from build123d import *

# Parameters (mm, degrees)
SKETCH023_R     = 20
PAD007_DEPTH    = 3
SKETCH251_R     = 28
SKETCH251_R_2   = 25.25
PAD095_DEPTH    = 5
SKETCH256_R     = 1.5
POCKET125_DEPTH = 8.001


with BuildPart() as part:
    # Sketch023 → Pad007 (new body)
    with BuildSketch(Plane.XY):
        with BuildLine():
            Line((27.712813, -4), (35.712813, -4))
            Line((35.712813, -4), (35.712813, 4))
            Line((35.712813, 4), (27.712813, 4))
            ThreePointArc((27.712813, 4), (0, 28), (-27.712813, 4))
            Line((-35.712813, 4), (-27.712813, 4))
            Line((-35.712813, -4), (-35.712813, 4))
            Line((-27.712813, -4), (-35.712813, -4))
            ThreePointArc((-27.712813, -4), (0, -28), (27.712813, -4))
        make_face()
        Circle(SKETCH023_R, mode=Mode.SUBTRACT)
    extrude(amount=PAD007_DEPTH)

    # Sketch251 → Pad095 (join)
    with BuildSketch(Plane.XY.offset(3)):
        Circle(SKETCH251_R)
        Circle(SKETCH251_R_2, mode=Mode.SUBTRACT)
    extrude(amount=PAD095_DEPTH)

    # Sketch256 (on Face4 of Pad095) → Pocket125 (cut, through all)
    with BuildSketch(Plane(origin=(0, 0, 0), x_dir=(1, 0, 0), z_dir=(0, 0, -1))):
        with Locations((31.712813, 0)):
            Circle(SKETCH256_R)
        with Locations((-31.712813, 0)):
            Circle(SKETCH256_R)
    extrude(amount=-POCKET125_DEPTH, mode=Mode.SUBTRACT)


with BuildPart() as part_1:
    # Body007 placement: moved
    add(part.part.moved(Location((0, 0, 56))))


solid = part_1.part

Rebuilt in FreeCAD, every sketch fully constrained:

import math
import FreeCAD as App
import Part
import Sketcher

doc = App.newDocument("Part")
body = doc.addObject("PartDesign::Body", "Body")

sketch1 = body.newObject("Sketcher::SketchObject", "Sketch")
sketch1.AttachmentSupport = (doc.getObject("XY_Plane"), [""])
sketch1.MapMode = "FlatFace"
sketch1.addGeometry(Part.LineSegment(App.Vector(28, -4, 0), App.Vector(36, -4, 0)), False)
sketch1.addGeometry(Part.LineSegment(App.Vector(36, -4, 0), App.Vector(36, 4, 0)), False)
sketch1.addGeometry(Part.LineSegment(App.Vector(36, 4, 0), App.Vector(28, 4, 0)), False)
sketch1.addGeometry(Part.ArcOfCircle(Part.Circle(App.Vector(0, 0, 0), App.Vector(0, 0, 1), 28), math.radians(8), math.radians(172)), False)
sketch1.addGeometry(Part.LineSegment(App.Vector(-28, 4, 0), App.Vector(-36, 4, 0)), False)
sketch1.addGeometry(Part.LineSegment(App.Vector(-36, 4, 0), App.Vector(-36, -4, 0)), False)
sketch1.addGeometry(Part.LineSegment(App.Vector(-36, -4, 0), App.Vector(-28, -4, 0)), False)
sketch1.addGeometry(Part.ArcOfCircle(Part.Circle(App.Vector(0, 0, 0), App.Vector(0, 0, 1), 28), math.radians(-172), math.radians(-8)), False)
sketch1.addGeometry(Part.Circle(App.Vector(0, 0, 0), App.Vector(0, 0, 1), 20), False)
sketch1.addConstraint(Sketcher.Constraint("Coincident", 0, 2, 1, 1))
sketch1.addConstraint(Sketcher.Constraint("Coincident", 1, 2, 2, 1))
sketch1.addConstraint(Sketcher.Constraint("Coincident", 2, 2, 3, 1))
sketch1.addConstraint(Sketcher.Constraint("Coincident", 3, 2, 4, 1))
sketch1.addConstraint(Sketcher.Constraint("Coincident", 4, 2, 5, 1))
sketch1.addConstraint(Sketcher.Constraint("Coincident", 5, 2, 6, 1))
sketch1.addConstraint(Sketcher.Constraint("Coincident", 6, 2, 7, 1))
sketch1.addConstraint(Sketcher.Constraint("Coincident", 7, 2, 0, 1))
sketch1.addConstraint(Sketcher.Constraint("Horizontal", 0))
sketch1.addConstraint(Sketcher.Constraint("Vertical", 1))
sketch1.addConstraint(Sketcher.Constraint("Horizontal", 2))
sketch1.addConstraint(Sketcher.Constraint("Horizontal", 4))
sketch1.addConstraint(Sketcher.Constraint("Vertical", 5))
sketch1.addConstraint(Sketcher.Constraint("Horizontal", 6))
sketch1.addConstraint(Sketcher.Constraint("Coincident", 3, 3, -1, 1))
sketch1.addConstraint(Sketcher.Constraint("Coincident", 7, 3, -1, 1))
sketch1.addConstraint(Sketcher.Constraint("Coincident", 8, 3, -1, 1))
sketch1.addConstraint(Sketcher.Constraint("Equal", 3, 7))
sketch1.addConstraint(Sketcher.Constraint("Symmetric", 0, 2, 4, 2, -1, 1))
sketch1.addConstraint(Sketcher.Constraint("Horizontal", 2, 2, 3, 2))
sketch1.addConstraint(Sketcher.Constraint("Horizontal", 0, 2, 5, 2))
sketch1.addConstraint(Sketcher.Constraint("Equal", 6, 1))
sketch1.addConstraint(Sketcher.Constraint("Diameter", 8, 40.0))
sketch1.addConstraint(Sketcher.Constraint("Radius", 3, 28.0))
sketch1.addConstraint(Sketcher.Constraint("DistanceX", 0, 1, 0, 2, 8.0))
pad1 = body.newObject("PartDesign::Pad", "Pad")
pad1.Profile = sketch1
pad1.Length = 3

sketch2 = body.newObject("Sketcher::SketchObject", "Sketch001")
sketch2.AttachmentSupport = (doc.getObject("XY_Plane"), [""])
sketch2.MapMode = "FlatFace"
sketch2.AttachmentOffset = App.Placement(App.Vector(0, 0, 3), App.Rotation())
sketch2.addGeometry(Part.Circle(App.Vector(0, 0, 0), App.Vector(0, 0, 1), 28), False)
sketch2.addGeometry(Part.Circle(App.Vector(0, 0, 0), App.Vector(0, 0, 1), 25), False)
sketch2.addConstraint(Sketcher.Constraint("Coincident", 0, 3, -1, 1))
sketch2.addConstraint(Sketcher.Constraint("Coincident", 1, 3, -1, 1))
sketch2.addConstraint(Sketcher.Constraint("Diameter", 0, 56.0))
sketch2.addConstraint(Sketcher.Constraint("Diameter", 1, 50.5))
pad2 = body.newObject("PartDesign::Pad", "Pad001")
pad2.Profile = sketch2
pad2.Length = 5

sketch3 = body.newObject("Sketcher::SketchObject", "Sketch002")
sketch3.AttachmentSupport = (doc.getObject("XY_Plane"), [""])
sketch3.MapMode = "FlatFace"
sketch3.addGeometry(Part.Circle(App.Vector(31.7, 0, 0), App.Vector(0, 0, 1), 1.5), False)
sketch3.addGeometry(Part.Circle(App.Vector(-31.7, 0, 0), App.Vector(0, 0, 1), 1.5), False)
sketch3.addConstraint(Sketcher.Constraint("Equal", 0, 1))
sketch3.addConstraint(Sketcher.Constraint("Symmetric", 0, 3, 1, 3, -1, 1))
sketch3.addConstraint(Sketcher.Constraint("PointOnObject", 0, 3, -1))
sketch3.addConstraint(Sketcher.Constraint("Diameter", 0, 3.0))
sketch3.addConstraint(Sketcher.Constraint("DistanceX", -1, 1, 0, 3, 31.712813))
pocket1 = body.newObject("PartDesign::Pocket", "Pocket")
pocket1.Profile = sketch3
pocket1.Type = "ThroughAll"
pocket1.Reversed = True
body2 = doc.addObject("PartDesign::Body", "Body001")
doc.recompute()

body.Placement = App.Placement(App.Vector(0, 0, 56), App.Rotation(App.Vector(0, 0, 1), 0))
boolean = body2.newObject("PartDesign::Boolean", "Boolean")
boolean.Type = "Fuse"
boolean.addObjects([body])

doc.recompute()
